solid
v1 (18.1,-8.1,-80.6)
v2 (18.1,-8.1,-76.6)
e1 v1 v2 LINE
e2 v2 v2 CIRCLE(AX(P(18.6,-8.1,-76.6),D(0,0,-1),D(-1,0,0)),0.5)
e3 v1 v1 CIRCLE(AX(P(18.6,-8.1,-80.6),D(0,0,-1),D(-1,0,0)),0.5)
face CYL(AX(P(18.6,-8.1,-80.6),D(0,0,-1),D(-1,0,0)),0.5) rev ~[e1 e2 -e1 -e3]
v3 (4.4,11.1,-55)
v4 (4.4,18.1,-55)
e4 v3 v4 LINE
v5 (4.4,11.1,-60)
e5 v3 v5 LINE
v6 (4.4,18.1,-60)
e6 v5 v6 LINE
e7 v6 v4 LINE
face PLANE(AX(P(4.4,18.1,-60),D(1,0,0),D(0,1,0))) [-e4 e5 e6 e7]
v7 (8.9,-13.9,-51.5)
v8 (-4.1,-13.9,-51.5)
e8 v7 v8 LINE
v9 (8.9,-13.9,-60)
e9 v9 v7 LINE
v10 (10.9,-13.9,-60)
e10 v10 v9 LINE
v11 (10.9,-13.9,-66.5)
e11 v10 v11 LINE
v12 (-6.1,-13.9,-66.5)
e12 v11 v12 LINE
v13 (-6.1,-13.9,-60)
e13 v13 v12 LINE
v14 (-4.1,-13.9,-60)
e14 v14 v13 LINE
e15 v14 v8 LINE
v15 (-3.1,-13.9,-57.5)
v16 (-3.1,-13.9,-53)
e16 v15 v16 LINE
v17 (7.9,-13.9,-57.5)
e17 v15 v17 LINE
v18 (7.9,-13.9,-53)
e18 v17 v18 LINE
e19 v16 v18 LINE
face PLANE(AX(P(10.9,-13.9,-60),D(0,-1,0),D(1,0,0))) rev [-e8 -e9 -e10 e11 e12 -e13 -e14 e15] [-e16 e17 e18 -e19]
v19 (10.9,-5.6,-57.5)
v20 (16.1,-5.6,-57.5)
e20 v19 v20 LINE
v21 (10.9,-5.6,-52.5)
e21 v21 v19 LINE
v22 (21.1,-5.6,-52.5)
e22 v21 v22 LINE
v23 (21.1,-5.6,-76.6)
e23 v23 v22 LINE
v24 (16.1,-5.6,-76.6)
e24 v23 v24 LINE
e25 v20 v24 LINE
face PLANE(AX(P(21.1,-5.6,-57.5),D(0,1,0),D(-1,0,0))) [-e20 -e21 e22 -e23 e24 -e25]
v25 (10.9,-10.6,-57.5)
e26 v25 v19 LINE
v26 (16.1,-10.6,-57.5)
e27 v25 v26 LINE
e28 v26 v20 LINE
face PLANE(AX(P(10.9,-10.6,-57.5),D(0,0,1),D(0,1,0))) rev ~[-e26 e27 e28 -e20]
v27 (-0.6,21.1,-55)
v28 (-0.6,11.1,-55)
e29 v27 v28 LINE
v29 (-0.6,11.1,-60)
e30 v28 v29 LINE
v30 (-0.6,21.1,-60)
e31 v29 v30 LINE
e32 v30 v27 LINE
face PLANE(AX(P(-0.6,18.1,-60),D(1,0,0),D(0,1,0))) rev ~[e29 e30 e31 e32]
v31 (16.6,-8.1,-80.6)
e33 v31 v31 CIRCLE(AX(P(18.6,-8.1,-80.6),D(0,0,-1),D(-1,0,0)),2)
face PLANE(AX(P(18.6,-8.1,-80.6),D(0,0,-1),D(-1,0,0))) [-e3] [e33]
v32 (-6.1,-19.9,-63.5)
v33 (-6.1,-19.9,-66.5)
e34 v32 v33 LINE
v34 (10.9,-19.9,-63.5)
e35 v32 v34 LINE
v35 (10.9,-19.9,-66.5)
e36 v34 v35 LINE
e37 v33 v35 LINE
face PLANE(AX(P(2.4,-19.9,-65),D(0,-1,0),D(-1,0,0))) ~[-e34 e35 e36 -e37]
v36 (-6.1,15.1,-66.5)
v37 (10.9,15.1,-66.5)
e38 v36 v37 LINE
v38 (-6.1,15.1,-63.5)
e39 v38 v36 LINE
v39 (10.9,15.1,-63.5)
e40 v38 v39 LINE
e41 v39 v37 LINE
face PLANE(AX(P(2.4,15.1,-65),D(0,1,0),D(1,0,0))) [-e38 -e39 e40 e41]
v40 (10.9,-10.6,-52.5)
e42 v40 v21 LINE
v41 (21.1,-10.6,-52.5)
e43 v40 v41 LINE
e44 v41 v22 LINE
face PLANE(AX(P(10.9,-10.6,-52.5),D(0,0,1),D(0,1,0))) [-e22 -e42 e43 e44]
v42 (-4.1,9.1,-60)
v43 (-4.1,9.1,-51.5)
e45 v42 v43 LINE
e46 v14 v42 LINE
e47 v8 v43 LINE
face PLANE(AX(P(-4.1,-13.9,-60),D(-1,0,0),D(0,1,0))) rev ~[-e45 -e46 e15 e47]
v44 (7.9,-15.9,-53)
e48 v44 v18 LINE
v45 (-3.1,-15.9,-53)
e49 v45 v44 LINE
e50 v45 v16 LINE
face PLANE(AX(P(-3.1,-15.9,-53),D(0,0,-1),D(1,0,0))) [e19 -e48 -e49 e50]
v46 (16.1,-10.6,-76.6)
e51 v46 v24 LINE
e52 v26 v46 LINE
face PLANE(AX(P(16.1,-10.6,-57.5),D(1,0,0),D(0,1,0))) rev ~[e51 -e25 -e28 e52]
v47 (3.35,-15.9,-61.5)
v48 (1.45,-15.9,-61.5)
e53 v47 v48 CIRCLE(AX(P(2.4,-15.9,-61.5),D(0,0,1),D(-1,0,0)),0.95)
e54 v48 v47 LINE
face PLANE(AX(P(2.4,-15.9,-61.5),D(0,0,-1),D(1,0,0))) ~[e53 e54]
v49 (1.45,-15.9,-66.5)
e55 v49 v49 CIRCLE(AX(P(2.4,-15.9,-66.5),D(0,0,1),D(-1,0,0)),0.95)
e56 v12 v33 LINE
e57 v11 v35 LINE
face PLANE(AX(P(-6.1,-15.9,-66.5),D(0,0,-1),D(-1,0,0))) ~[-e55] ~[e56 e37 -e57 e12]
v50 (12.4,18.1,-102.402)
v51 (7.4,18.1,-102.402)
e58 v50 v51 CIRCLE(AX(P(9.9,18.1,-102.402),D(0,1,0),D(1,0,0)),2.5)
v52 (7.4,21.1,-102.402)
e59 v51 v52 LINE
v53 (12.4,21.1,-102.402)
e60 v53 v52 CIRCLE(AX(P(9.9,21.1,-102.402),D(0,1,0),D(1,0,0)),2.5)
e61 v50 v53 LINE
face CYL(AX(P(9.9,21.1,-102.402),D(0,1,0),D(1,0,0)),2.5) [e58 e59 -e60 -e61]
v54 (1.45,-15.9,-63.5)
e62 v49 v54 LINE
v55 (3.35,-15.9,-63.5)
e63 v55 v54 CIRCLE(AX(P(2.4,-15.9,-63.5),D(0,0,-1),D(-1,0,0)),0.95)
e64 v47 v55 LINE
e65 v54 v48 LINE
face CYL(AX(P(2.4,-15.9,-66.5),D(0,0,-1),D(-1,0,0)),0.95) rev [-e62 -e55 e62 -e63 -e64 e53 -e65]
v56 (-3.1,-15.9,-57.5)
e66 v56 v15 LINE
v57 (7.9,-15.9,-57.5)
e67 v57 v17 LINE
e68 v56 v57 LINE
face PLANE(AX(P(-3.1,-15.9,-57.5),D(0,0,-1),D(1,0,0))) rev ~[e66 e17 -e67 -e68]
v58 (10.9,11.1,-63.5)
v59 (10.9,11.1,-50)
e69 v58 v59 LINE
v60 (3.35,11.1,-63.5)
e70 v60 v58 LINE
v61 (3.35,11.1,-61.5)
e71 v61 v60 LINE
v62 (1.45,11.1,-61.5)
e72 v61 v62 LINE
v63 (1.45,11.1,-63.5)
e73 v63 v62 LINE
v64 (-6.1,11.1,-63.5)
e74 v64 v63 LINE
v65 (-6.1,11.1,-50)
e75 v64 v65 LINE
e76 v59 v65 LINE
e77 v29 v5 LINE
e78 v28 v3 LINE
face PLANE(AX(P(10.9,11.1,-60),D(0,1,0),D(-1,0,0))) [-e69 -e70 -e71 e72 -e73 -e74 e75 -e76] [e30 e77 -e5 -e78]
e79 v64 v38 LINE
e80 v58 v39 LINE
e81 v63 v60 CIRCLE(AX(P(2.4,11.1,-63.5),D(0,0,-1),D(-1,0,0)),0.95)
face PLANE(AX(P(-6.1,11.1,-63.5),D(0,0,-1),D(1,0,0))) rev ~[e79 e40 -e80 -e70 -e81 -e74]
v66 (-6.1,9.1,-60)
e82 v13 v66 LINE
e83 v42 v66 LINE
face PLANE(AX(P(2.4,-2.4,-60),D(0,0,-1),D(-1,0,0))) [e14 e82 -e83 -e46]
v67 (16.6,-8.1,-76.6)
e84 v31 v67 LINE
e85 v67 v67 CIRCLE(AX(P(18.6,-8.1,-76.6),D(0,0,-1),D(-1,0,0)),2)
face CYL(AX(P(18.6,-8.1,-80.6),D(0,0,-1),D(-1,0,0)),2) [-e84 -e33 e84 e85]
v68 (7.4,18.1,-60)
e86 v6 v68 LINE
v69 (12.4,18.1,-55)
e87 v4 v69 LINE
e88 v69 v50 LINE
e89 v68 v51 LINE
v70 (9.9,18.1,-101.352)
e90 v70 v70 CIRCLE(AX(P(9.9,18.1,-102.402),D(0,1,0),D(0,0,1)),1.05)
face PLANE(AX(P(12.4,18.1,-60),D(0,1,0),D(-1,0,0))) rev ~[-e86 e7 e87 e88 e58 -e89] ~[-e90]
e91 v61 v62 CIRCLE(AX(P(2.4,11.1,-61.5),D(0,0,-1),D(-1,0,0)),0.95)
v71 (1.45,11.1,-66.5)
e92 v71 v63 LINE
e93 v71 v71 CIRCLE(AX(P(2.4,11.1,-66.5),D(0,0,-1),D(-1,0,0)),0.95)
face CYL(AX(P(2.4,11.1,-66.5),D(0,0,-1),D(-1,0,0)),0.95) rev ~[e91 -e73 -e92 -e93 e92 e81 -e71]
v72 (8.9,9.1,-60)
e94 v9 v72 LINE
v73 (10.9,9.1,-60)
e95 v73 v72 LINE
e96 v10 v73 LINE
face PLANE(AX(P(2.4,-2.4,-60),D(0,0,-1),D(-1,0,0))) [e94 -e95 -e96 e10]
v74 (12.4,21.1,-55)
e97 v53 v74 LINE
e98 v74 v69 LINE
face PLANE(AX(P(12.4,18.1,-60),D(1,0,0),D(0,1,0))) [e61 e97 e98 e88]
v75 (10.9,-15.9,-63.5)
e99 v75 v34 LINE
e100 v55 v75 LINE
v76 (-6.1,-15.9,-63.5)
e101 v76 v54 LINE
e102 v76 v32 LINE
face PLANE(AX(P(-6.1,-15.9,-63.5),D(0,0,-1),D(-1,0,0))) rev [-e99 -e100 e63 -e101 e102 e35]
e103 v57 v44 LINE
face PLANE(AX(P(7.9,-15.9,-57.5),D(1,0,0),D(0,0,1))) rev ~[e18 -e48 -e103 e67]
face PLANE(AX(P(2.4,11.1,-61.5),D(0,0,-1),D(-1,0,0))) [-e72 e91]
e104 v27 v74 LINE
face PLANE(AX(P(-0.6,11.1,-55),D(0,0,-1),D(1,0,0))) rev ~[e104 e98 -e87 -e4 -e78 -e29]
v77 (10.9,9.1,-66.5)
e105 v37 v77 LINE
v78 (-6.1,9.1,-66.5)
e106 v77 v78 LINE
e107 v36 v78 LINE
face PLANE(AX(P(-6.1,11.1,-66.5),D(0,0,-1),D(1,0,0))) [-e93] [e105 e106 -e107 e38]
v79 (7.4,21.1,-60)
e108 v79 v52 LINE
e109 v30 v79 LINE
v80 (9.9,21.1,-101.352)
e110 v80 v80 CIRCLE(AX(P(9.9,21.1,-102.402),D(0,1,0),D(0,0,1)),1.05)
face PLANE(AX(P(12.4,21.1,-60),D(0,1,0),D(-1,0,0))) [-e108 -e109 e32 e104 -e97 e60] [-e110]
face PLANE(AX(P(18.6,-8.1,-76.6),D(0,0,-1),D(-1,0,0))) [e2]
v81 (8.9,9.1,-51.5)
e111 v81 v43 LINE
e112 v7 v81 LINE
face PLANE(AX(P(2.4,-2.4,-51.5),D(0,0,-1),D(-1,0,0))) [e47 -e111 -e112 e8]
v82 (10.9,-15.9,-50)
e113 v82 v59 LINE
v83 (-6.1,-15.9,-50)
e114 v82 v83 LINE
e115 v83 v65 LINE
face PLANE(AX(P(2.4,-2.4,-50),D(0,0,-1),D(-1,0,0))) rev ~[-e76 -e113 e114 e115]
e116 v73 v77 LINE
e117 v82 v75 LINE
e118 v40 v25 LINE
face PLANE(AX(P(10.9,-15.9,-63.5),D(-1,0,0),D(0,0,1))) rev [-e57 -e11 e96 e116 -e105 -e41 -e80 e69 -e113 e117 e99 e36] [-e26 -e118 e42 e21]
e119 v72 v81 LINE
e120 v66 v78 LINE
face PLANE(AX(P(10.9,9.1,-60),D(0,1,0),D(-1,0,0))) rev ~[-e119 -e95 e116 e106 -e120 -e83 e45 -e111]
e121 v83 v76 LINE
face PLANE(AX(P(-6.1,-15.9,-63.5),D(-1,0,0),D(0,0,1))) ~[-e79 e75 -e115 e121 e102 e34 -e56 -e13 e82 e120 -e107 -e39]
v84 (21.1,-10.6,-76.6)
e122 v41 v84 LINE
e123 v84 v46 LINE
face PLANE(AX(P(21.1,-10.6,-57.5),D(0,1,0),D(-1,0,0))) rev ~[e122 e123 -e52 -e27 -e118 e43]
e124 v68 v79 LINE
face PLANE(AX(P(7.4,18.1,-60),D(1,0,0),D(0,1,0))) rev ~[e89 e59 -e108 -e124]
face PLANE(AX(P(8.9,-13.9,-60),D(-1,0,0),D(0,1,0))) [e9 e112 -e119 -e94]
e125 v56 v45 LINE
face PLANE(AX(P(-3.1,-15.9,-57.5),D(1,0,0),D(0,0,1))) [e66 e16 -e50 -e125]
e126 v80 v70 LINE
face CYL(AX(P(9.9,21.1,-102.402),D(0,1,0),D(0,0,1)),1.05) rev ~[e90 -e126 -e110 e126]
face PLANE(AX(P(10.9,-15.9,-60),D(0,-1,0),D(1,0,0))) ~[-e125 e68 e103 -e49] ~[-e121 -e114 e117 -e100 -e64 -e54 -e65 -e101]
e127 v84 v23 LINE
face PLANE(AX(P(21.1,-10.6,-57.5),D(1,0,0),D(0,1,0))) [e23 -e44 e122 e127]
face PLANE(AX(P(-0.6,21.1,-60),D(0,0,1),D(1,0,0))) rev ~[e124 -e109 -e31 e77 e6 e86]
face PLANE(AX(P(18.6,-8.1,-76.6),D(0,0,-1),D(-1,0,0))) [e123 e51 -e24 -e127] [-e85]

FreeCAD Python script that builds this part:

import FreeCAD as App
import Part
import Sketcher
from FreeCAD import Vector

doc = App.newDocument("Part")
body = doc.addObject("PartDesign::Body", "Body")

sketch1 = body.newObject("Sketcher::SketchObject", "Sketch")
sketch1.AttachmentSupport = (doc.getObject("XY_Plane"), [""])
sketch1.MapMode = "FlatFace"
sketch1.addGeometry(Part.LineSegment(Vector(0, 0, 0), Vector(0, -4.8, 0)), False)
sketch1.addGeometry(Part.LineSegment(Vector(0, -4.8, 0), Vector(4.8, -4.8, 0)), False)
sketch1.addGeometry(Part.LineSegment(Vector(4.8, -4.8, 0), Vector(4.8, 0, 0)), False)
sketch1.addGeometry(Part.LineSegment(Vector(4.8, 0, 0), Vector(0, 0, 0)), False)
sketch1.addConstraint(Sketcher.Constraint("Coincident", 0, 2, 1, 1))
sketch1.addConstraint(Sketcher.Constraint("Coincident", 1, 2, 2, 1))
sketch1.addConstraint(Sketcher.Constraint("Coincident", 2, 2, 3, 1))
sketch1.addConstraint(Sketcher.Constraint("Coincident", 3, 2, 0, 1))
sketch1.addConstraint(Sketcher.Constraint("Vertical", 0))
sketch1.addConstraint(Sketcher.Constraint("Horizontal", 1))
sketch1.addConstraint(Sketcher.Constraint("Vertical", 2))
sketch1.addConstraint(Sketcher.Constraint("Horizontal", 3))
sketch1.addConstraint(Sketcher.Constraint("Coincident", 3, 2, -1, 1))
sketch1.addConstraint(Sketcher.Constraint("Equal", 3, 0))
sketch1.addConstraint(Sketcher.Constraint("DistanceX", 1, 1, 1, 2, 4.8))
pad1 = body.newObject("PartDesign::Pad", "Pad")
pad1.Profile = sketch1
pad1.Length = 1

sketch2 = body.newObject("Sketcher::SketchObject", "Sketch001")
sketch2.AttachmentSupport = (doc.getObject("XY_Plane"), [""])
sketch2.MapMode = "FlatFace"
sketch2.addGeometry(Part.LineSegment(Vector(5, 0.2, 0), Vector(5, -5, 0)), False)
sketch2.addGeometry(Part.LineSegment(Vector(5, -5, 0), Vector(-0.2, -5, 0)), False)
sketch2.addGeometry(Part.LineSegment(Vector(-0.2, -5, 0), Vector(-0.2, 0.2, 0)), False)
sketch2.addGeometry(Part.LineSegment(Vector(-0.2, 0.2, 0), Vector(5, 0.2, 0)), False)
sketch2.addConstraint(Sketcher.Constraint("Coincident", 0, 2, 1, 1))
sketch2.addConstraint(Sketcher.Constraint("Coincident", 1, 2, 2, 1))
sketch2.addConstraint(Sketcher.Constraint("Coincident", 2, 2, 3, 1))
sketch2.addConstraint(Sketcher.Constraint("Coincident", 3, 2, 0, 1))
sketch2.addConstraint(Sketcher.Constraint("Vertical", 0))
sketch2.addConstraint(Sketcher.Constraint("Horizontal", 1))
sketch2.addConstraint(Sketcher.Constraint("Vertical", 2))
sketch2.addConstraint(Sketcher.Constraint("Horizontal", 3))
sketch2.addConstraint(Sketcher.Constraint("Equal", 3, 0))
sketch2.addConstraint(Sketcher.Constraint("DistanceX", 1, 2, 1, 1, 5.2))
sketch2.addConstraint(Sketcher.Constraint("DistanceX", -1, 1, 0, 2, 5.0))
sketch2.addConstraint(Sketcher.Constraint("DistanceY", 0, 2, -1, 1, 5.0))
pad2 = body.newObject("PartDesign::Pad", "Pad001")
pad2.Profile = sketch2
pad2.Length = 50
pad2.Reversed = True

sketch3 = body.newObject("Sketcher::SketchObject", "Sketch002")
sketch3.AttachmentSupport = (doc.getObject("XY_Plane"), [""])
sketch3.MapMode = "FlatFace"
sketch3.AttachmentOffset = App.Placement(Vector(0, 0, -50), App.Rotation())
sketch3.addGeometry(Part.LineSegment(Vector(10.9, 11.1, 0), Vector(10.9, -15.9, 0)), False)
sketch3.addGeometry(Part.LineSegment(Vector(10.9, -15.9, 0), Vector(-6.1, -15.9, 0)), False)
sketch3.addGeometry(Part.LineSegment(Vector(-6.1, -15.9, 0), Vector(-6.1, 11.1, 0)), False)
sketch3.addGeometry(Part.LineSegment(Vector(-6.1, 11.1, 0), Vector(10.9, 11.1, 0)), False)
sketch3.addConstraint(Sketcher.Constraint("Coincident", 0, 2, 1, 1))
sketch3.addConstraint(Sketcher.Constraint("Coincident", 1, 2, 2, 1))
sketch3.addConstraint(Sketcher.Constraint("Coincident", 2, 2, 3, 1))
sketch3.addConstraint(Sketcher.Constraint("Coincident", 3, 2, 0, 1))
sketch3.addConstraint(Sketcher.Constraint("Vertical", 0))
sketch3.addConstraint(Sketcher.Constraint("Horizontal", 1))
sketch3.addConstraint(Sketcher.Constraint("Vertical", 2))
sketch3.addConstraint(Sketcher.Constraint("Horizontal", 3))
sketch3.addConstraint(Sketcher.Constraint("DistanceX", 1, 2, 1, 1, 17.0))
sketch3.addConstraint(Sketcher.Constraint("DistanceY", 0, 2, 0, 1, 27.0))
sketch3.addConstraint(Sketcher.Constraint("DistanceX", -1, 1, 0, 2, 10.9))
sketch3.addConstraint(Sketcher.Constraint("DistanceY", 0, 2, -1, 1, 15.9))
pad3 = body.newObject("PartDesign::Pad", "Pad002")
pad3.Profile = sketch3
pad3.Length = 10
pad3.Reversed = True

sketch4 = body.newObject("Sketcher::SketchObject", "Sketch003")
sketch4.AttachmentSupport = (doc.getObject("XY_Plane"), [""])
sketch4.MapMode = "FlatFace"
sketch4.AttachmentOffset = App.Placement(Vector(0, 0, -60), App.Rotation())
sketch4.addGeometry(Part.LineSegment(Vector(8.9, 9.1, 0), Vector(8.9, -13.9, 0)), False)
sketch4.addGeometry(Part.LineSegment(Vector(8.9, -13.9, 0), Vector(-4.1, -13.9, 0)), False)
sketch4.addGeometry(Part.LineSegment(Vector(-4.1, -13.9, 0), Vector(-4.1, 9.1, 0)), False)
sketch4.addGeometry(Part.LineSegment(Vector(-4.1, 9.1, 0), Vector(8.9, 9.1, 0)), False)
sketch4.addConstraint(Sketcher.Constraint("Coincident", 0, 2, 1, 1))
sketch4.addConstraint(Sketcher.Constraint("Coincident", 1, 2, 2, 1))
sketch4.addConstraint(Sketcher.Constraint("Coincident", 2, 2, 3, 1))
sketch4.addConstraint(Sketcher.Constraint("Coincident", 3, 2, 0, 1))
sketch4.addConstraint(Sketcher.Constraint("Vertical", 0))
sketch4.addConstraint(Sketcher.Constraint("Horizontal", 1))
sketch4.addConstraint(Sketcher.Constraint("Vertical", 2))
sketch4.addConstraint(Sketcher.Constraint("Horizontal", 3))
sketch4.addConstraint(Sketcher.Constraint("DistanceX", 1, 2, 1, 1, 13.0))
sketch4.addConstraint(Sketcher.Constraint("DistanceY", 0, 2, 0, 1, 23.0))
sketch4.addConstraint(Sketcher.Constraint("DistanceX", -1, 1, 0, 2, 8.9))
sketch4.addConstraint(Sketcher.Constraint("DistanceY", 0, 2, -1, 1, 13.9))
pocket1 = body.newObject("PartDesign::Pocket", "Pocket")
pocket1.Profile = sketch4
pocket1.Length = 8.5
pocket1.Reversed = True

sketch5 = body.newObject("Sketcher::SketchObject", "Sketch004")
sketch5.AttachmentSupport = (doc.getObject("XZ_Plane"), [""])
sketch5.MapMode = "FlatFace"
sketch5.AttachmentOffset = App.Placement(Vector(0, 0, 15.9), App.Rotation())
sketch5.addGeometry(Part.LineSegment(Vector(-3.1, -53, 0), Vector(-3.1, -57.5, 0)), False)
sketch5.addGeometry(Part.LineSegment(Vector(-3.1, -57.5, 0), Vector(7.9, -57.5, 0)), False)
sketch5.addGeometry(Part.LineSegment(Vector(7.9, -57.5, 0), Vector(7.9, -53, 0)), False)
sketch5.addGeometry(Part.LineSegment(Vector(7.9, -53, 0), Vector(-3.1, -53, 0)), False)
sketch5.addConstraint(Sketcher.Constraint("Coincident", 0, 2, 1, 1))
sketch5.addConstraint(Sketcher.Constraint("Coincident", 1, 2, 2, 1))
sketch5.addConstraint(Sketcher.Constraint("Coincident", 2, 2, 3, 1))
sketch5.addConstraint(Sketcher.Constraint("Coincident", 3, 2, 0, 1))
sketch5.addConstraint(Sketcher.Constraint("Vertical", 0))
sketch5.addConstraint(Sketcher.Constraint("Horizontal", 1))
sketch5.addConstraint(Sketcher.Constraint("Vertical", 2))
sketch5.addConstraint(Sketcher.Constraint("Horizontal", 3))
sketch5.addConstraint(Sketcher.Constraint("DistanceX", 1, 1, 1, 2, 11.0))
sketch5.addConstraint(Sketcher.Constraint("DistanceY", 0, 2, 0, 1, 4.5))
sketch5.addConstraint(Sketcher.Constraint("DistanceY", 2, 2, -1, 1, 53.0))
sketch5.addConstraint(Sketcher.Constraint("DistanceX", 0, 2, -1, 1, 3.1))
pocket2 = body.newObject("PartDesign::Pocket", "Pocket001")
pocket2.Profile = sketch5
pocket2.Length = 4

sketch6 = body.newObject("Sketcher::SketchObject", "Sketch005")
sketch6.AttachmentSupport = (doc.getObject("XY_Plane"), [""])
sketch6.MapMode = "FlatFace"
sketch6.AttachmentOffset = App.Placement(Vector(0, 0, -50), App.Rotation())
sketch6.addGeometry(Part.LineSegment(Vector(-6.1, 11.1, 0), Vector(-6.1, -15.9, 0)), False)
sketch6.addGeometry(Part.LineSegment(Vector(-6.1, -15.9, 0), Vector(10.9, -15.9, 0)), False)
sketch6.addGeometry(Part.LineSegment(Vector(10.9, -15.9, 0), Vector(10.9, 11.1, 0)), False)
sketch6.addGeometry(Part.LineSegment(Vector(10.9, 11.1, 0), Vector(-6.1, 11.1, 0)), False)
sketch6.addConstraint(Sketcher.Constraint("Coincident", 0, 2, 1, 1))
sketch6.addConstraint(Sketcher.Constraint("Coincident", 1, 2, 2, 1))
sketch6.addConstraint(Sketcher.Constraint("Coincident", 2, 2, 3, 1))
sketch6.addConstraint(Sketcher.Constraint("Coincident", 3, 2, 0, 1))
sketch6.addConstraint(Sketcher.Constraint("Vertical", 0))
sketch6.addConstraint(Sketcher.Constraint("Horizontal", 1))
sketch6.addConstraint(Sketcher.Constraint("Vertical", 2))
sketch6.addConstraint(Sketcher.Constraint("Horizontal", 3))
sketch6.addConstraint(Sketcher.Constraint("DistanceX", 1, 1, 1, 2, 17.0))
sketch6.addConstraint(Sketcher.Constraint("DistanceY", 0, 2, 0, 1, 27.0))
sketch6.addConstraint(Sketcher.Constraint("DistanceX", 0, 2, -1, 1, 6.1))
sketch6.addConstraint(Sketcher.Constraint("DistanceY", 0, 2, -1, 1, 15.9))
pocket3 = body.newObject("PartDesign::Pocket", "Pocket002")
pocket3.Profile = sketch6
pocket3.Type = "ThroughAll"
pocket3.Reversed = True

sketch7 = body.newObject("Sketcher::SketchObject", "Sketch006")
sketch7.AttachmentSupport = (doc.getObject("XY_Plane"), [""])
sketch7.MapMode = "FlatFace"
sketch7.AttachmentOffset = App.Placement(Vector(0, 0, -60), App.Rotation())
sketch7.addGeometry(Part.LineSegment(Vector(10.9, 11.1, 0), Vector(10.9, 9.1, 0)), False)
sketch7.addGeometry(Part.LineSegment(Vector(10.9, 9.1, 0), Vector(-6.1, 9.1, 0)), False)
sketch7.addGeometry(Part.LineSegment(Vector(-6.1, 9.1, 0), Vector(-6.1, 11.1, 0)), False)
sketch7.addGeometry(Part.LineSegment(Vector(-6.1, 11.1, 0), Vector(10.9, 11.1, 0)), False)
sketch7.addConstraint(Sketcher.Constraint("Coincident", 0, 2, 1, 1))
sketch7.addConstraint(Sketcher.Constraint("Coincident", 1, 2, 2, 1))
sketch7.addConstraint(Sketcher.Constraint("Coincident", 2, 2, 3, 1))
sketch7.addConstraint(Sketcher.Constraint("Coincident", 3, 2, 0, 1))
sketch7.addConstraint(Sketcher.Constraint("Vertical", 0))
sketch7.addConstraint(Sketcher.Constraint("Horizontal", 1))
sketch7.addConstraint(Sketcher.Constraint("Vertical", 2))
sketch7.addConstraint(Sketcher.Constraint("Horizontal", 3))
sketch7.addConstraint(Sketcher.Constraint("DistanceX", 1, 2, 1, 1, 17.0))
sketch7.addConstraint(Sketcher.Constraint("DistanceY", 0, 2, 0, 1, 2.0))
sketch7.addConstraint(Sketcher.Constraint("DistanceX", -1, 1, 0, 2, 10.9))
sketch7.addConstraint(Sketcher.Constraint("DistanceY", -1, 1, 0, 2, 9.1))
pad4 = body.newObject("PartDesign::Pad", "Pad003")
pad4.Profile = sketch7
pad4.Length = 6.5
pad4.Reversed = True

sketch8 = body.newObject("Sketcher::SketchObject", "Sketch007")
sketch8.AttachmentSupport = (doc.getObject("XZ_Plane"), [""])
sketch8.MapMode = "FlatFace"
sketch8.AttachmentOffset = App.Placement(Vector(0, 0, -11.1), App.Rotation())
sketch8.addGeometry(Part.LineSegment(Vector(-6.1, -66.5, 0), Vector(-6.1, -63.5, 0)), False)
sketch8.addGeometry(Part.LineSegment(Vector(-6.1, -63.5, 0), Vector(10.9, -63.5, 0)), False)
sketch8.addGeometry(Part.LineSegment(Vector(10.9, -63.5, 0), Vector(10.9, -66.5, 0)), False)
sketch8.addGeometry(Part.LineSegment(Vector(10.9, -66.5, 0), Vector(-6.1, -66.5, 0)), False)
sketch8.addConstraint(Sketcher.Constraint("Coincident", 0, 2, 1, 1))
sketch8.addConstraint(Sketcher.Constraint("Coincident", 1, 2, 2, 1))
sketch8.addConstraint(Sketcher.Constraint("Coincident", 2, 2, 3, 1))
sketch8.addConstraint(Sketcher.Constraint("Coincident", 3, 2, 0, 1))
sketch8.addConstraint(Sketcher.Constraint("Vertical", 0))
sketch8.addConstraint(Sketcher.Constraint("Horizontal", 1))
sketch8.addConstraint(Sketcher.Constraint("Vertical", 2))
sketch8.addConstraint(Sketcher.Constraint("Horizontal", 3))
sketch8.addConstraint(Sketcher.Constraint("DistanceX", 1, 1, 1, 2, 17.0))
sketch8.addConstraint(Sketcher.Constraint("DistanceY", 0, 1, 0, 2, 3.0))
sketch8.addConstraint(Sketcher.Constraint("DistanceX", 0, 2, -1, 1, 6.1))
sketch8.addConstraint(Sketcher.Constraint("DistanceY", 0, 2, -1, 1, 63.5))
pad5 = body.newObject("PartDesign::Pad", "Pad004")
pad5.Profile = sketch8
pad5.Length = 4
pad5.Reversed = True

sketch9 = body.newObject("Sketcher::SketchObject", "Sketch008")
sketch9.AttachmentSupport = (doc.getObject("XY_Plane"), [""])
sketch9.MapMode = "FlatFace"
sketch9.AttachmentOffset = App.Placement(Vector(0, 0, -66.5), App.Rotation())
sketch9.addGeometry(Part.Circle(Vector(2.4, 11.1, 0), Vector(0, 0, 1), 0.95), False)
sketch9.addConstraint(Sketcher.Constraint("Diameter", 0, 1.9))
sketch9.addConstraint(Sketcher.Constraint("DistanceX", -1, 1, 0, 3, 2.4))
sketch9.addConstraint(Sketcher.Constraint("DistanceY", -1, 1, 0, 3, 11.1))
pocket4 = body.newObject("PartDesign::Pocket", "Pocket003")
pocket4.Profile = sketch9
pocket4.Length = 5
pocket4.Reversed = True
doc.recompute()

datumplane = body.newObject("PartDesign::Plane", "DatumPlane")
datumplane.AttachmentSupport = (doc.getObject("XZ_Plane"), [""])
datumplane.MapMode = "FlatFace"
datumplane.AttachmentOffset = App.Placement(Vector(0, 0, 2.4), App.Rotation())
mirrored = body.newObject("PartDesign::Mirrored", "Mirrored")
mirrored.Originals = [pad4, pad5, pocket4]
mirrored.MirrorPlane = (datumplane, [""])
body.Tip = mirrored

sketch10 = body.newObject("Sketcher::SketchObject", "Sketch009")
sketch10.AttachmentSupport = (doc.getObject("YZ_Plane"), [""])
sketch10.MapMode = "FlatFace"
sketch10.AttachmentOffset = App.Placement(Vector(0, 0, 10.9), App.Rotation())
sketch10.addGeometry(Part.LineSegment(Vector(-5.6, -52.5, 0), Vector(-10.6, -52.5, 0)), False)
sketch10.addGeometry(Part.LineSegment(Vector(-10.6, -52.5, 0), Vector(-10.6, -57.5, 0)), False)
sketch10.addGeometry(Part.LineSegment(Vector(-10.6, -57.5, 0), Vector(-5.6, -57.5, 0)), False)
sketch10.addGeometry(Part.LineSegment(Vector(-5.6, -57.5, 0), Vector(-5.6, -52.5, 0)), False)
sketch10.addConstraint(Sketcher.Constraint("Coincident", 0, 2, 1, 1))
sketch10.addConstraint(Sketcher.Constraint("Coincident", 1, 2, 2, 1))
sketch10.addConstraint(Sketcher.Constraint("Coincident", 2, 2, 3, 1))
sketch10.addConstraint(Sketcher.Constraint("Coincident", 3, 2, 0, 1))
sketch10.addConstraint(Sketcher.Constraint("Horizontal", 0))
sketch10.addConstraint(Sketcher.Constraint("Vertical", 1))
sketch10.addConstraint(Sketcher.Constraint("Horizontal", 2))
sketch10.addConstraint(Sketcher.Constraint("Vertical", 3))
sketch10.addConstraint(Sketcher.Constraint("Equal", 2, 1))
sketch10.addConstraint(Sketcher.Constraint("DistanceX", 0, 2, 0, 1, 5.0))
sketch10.addConstraint(Sketcher.Constraint("DistanceX", 0, 2, -1, 1, 10.6))
sketch10.addConstraint(Sketcher.Constraint("DistanceY", 0, 2, -1, 1, 52.5))
pad6 = body.newObject("PartDesign::Pad", "Pad005")
pad6.Profile = sketch10
pad6.Length = 10.2

sketch11 = body.newObject("Sketcher::SketchObject", "Sketch010")
sketch11.AttachmentSupport = (doc.getObject("XY_Plane"), [""])
sketch11.MapMode = "FlatFace"
sketch11.AttachmentOffset = App.Placement(Vector(0, 0, -57.5), App.Rotation())
sketch11.addGeometry(Part.LineSegment(Vector(21.1, -5.6, 0), Vector(21.1, -10.6, 0)), False)
sketch11.addGeometry(Part.LineSegment(Vector(21.1, -10.6, 0), Vector(16.1, -10.6, 0)), False)
sketch11.addGeometry(Part.LineSegment(Vector(16.1, -10.6, 0), Vector(16.1, -5.6, 0)), False)
sketch11.addGeometry(Part.LineSegment(Vector(16.1, -5.6, 0), Vector(21.1, -5.6, 0)), False)
sketch11.addConstraint(Sketcher.Constraint("Coincident", 0, 2, 1, 1))
sketch11.addConstraint(Sketcher.Constraint("Coincident", 1, 2, 2, 1))
sketch11.addConstraint(Sketcher.Constraint("Coincident", 2, 2, 3, 1))
sketch11.addConstraint(Sketcher.Constraint("Coincident", 3, 2, 0, 1))
sketch11.addConstraint(Sketcher.Constraint("Vertical", 0))
sketch11.addConstraint(Sketcher.Constraint("Horizontal", 1))
sketch11.addConstraint(Sketcher.Constraint("Vertical", 2))
sketch11.addConstraint(Sketcher.Constraint("Horizontal", 3))
sketch11.addConstraint(Sketcher.Constraint("Equal", 3, 0))
sketch11.addConstraint(Sketcher.Constraint("DistanceX", 1, 2, 1, 1, 5.0))
sketch11.addConstraint(Sketcher.Constraint("DistanceX", -1, 1, 0, 2, 21.1))
sketch11.addConstraint(Sketcher.Constraint("DistanceY", 0, 2, -1, 1, 10.6))
pad7 = body.newObject("PartDesign::Pad", "Pad006")
pad7.Profile = sketch11
pad7.Length = 23.1
pad7.Reversed = True

sketch12 = body.newObject("Sketcher::SketchObject", "Sketch011")
sketch12.AttachmentSupport = (doc.getObject("XY_Plane"), [""])
sketch12.MapMode = "FlatFace"
sketch12.AttachmentOffset = App.Placement(Vector(0, 0, -80.6), App.Rotation())
sketch12.addGeometry(Part.LineSegment(Vector(21.1, -5.6, 0), Vector(21.1, -10.6, 0)), False)
sketch12.addGeometry(Part.LineSegment(Vector(21.1, -10.6, 0), Vector(16.1, -10.6, 0)), False)
sketch12.addGeometry(Part.LineSegment(Vector(16.1, -10.6, 0), Vector(16.1, -5.6, 0)), False)
sketch12.addGeometry(Part.LineSegment(Vector(16.1, -5.6, 0), Vector(21.1, -5.6, 0)), False)
sketch12.addGeometry(Part.Circle(Vector(18.6, -8.1, 0), Vector(0, 0, 1), 2), False)
sketch12.addConstraint(Sketcher.Constraint("Coincident", 0, 2, 1, 1))
sketch12.addConstraint(Sketcher.Constraint("Coincident", 1, 2, 2, 1))
sketch12.addConstraint(Sketcher.Constraint("Coincident", 2, 2, 3, 1))
sketch12.addConstraint(Sketcher.Constraint("Coincident", 3, 2, 0, 1))
sketch12.addConstraint(Sketcher.Constraint("Vertical", 0))
sketch12.addConstraint(Sketcher.Constraint("Horizontal", 1))
sketch12.addConstraint(Sketcher.Constraint("Vertical", 2))
sketch12.addConstraint(Sketcher.Constraint("Horizontal", 3))
sketch12.addConstraint(Sketcher.Constraint("Equal", 3, 0))
sketch12.addConstraint(Sketcher.Constraint("Diameter", 4, 4.0))
sketch12.addConstraint(Sketcher.Constraint("DistanceX", 1, 2, 1, 1, 5.0))
sketch12.addConstraint(Sketcher.Constraint("DistanceX", -1, 1, 4, 3, 18.6))
sketch12.addConstraint(Sketcher.Constraint("DistanceY", 4, 3, -1, 1, 8.1))
sketch12.addConstraint(Sketcher.Constraint("DistanceX", -1, 1, 0, 2, 21.1))
sketch12.addConstraint(Sketcher.Constraint("DistanceY", 0, 2, -1, 1, 10.6))
pocket5 = body.newObject("PartDesign::Pocket", "Pocket004")
pocket5.Profile = sketch12
pocket5.Length = 4
pocket5.Reversed = True

sketch13 = body.newObject("Sketcher::SketchObject", "Sketch012")
sketch13.AttachmentSupport = (doc.getObject("XY_Plane"), [""])
sketch13.MapMode = "FlatFace"
sketch13.AttachmentOffset = App.Placement(Vector(0, 0, -80.6), App.Rotation())
sketch13.addGeometry(Part.Circle(Vector(18.6, -8.1, 0), Vector(0, 0, 1), 0.5), False)
sketch13.addConstraint(Sketcher.Constraint("Diameter", 0, 1.0))
sketch13.addConstraint(Sketcher.Constraint("DistanceX", -1, 1, 0, 3, 18.6))
sketch13.addConstraint(Sketcher.Constraint("DistanceY", 0, 3, -1, 1, 8.1))
pocket6 = body.newObject("PartDesign::Pocket", "Pocket005")
pocket6.Profile = sketch13
pocket6.Length = 4
pocket6.Reversed = True

sketch14 = body.newObject("Sketcher::SketchObject", "Sketch013")
sketch14.AttachmentSupport = (doc.getObject("XZ_Plane"), [""])
sketch14.MapMode = "FlatFace"
sketch14.AttachmentOffset = App.Placement(Vector(0, 0, -11.1), App.Rotation())
sketch14.addGeometry(Part.LineSegment(Vector(-0.6, -60, 0), Vector(-0.6, -55, 0)), False)
sketch14.addGeometry(Part.LineSegment(Vector(-0.6, -55, 0), Vector(4.4, -55, 0)), False)
sketch14.addGeometry(Part.LineSegment(Vector(4.4, -55, 0), Vector(4.4, -60, 0)), False)
sketch14.addGeometry(Part.LineSegment(Vector(4.4, -60, 0), Vector(-0.6, -60, 0)), False)
sketch14.addConstraint(Sketcher.Constraint("Coincident", 0, 2, 1, 1))
sketch14.addConstraint(Sketcher.Constraint("Coincident", 1, 2, 2, 1))
sketch14.addConstraint(Sketcher.Constraint("Coincident", 2, 2, 3, 1))
sketch14.addConstraint(Sketcher.Constraint("Coincident", 3, 2, 0, 1))
sketch14.addConstraint(Sketcher.Constraint("Vertical", 0))
sketch14.addConstraint(Sketcher.Constraint("Horizontal", 1))
sketch14.addConstraint(Sketcher.Constraint("Vertical", 2))
sketch14.addConstraint(Sketcher.Constraint("Horizontal", 3))
sketch14.addConstraint(Sketcher.Constraint("Equal", 3, 0))
sketch14.addConstraint(Sketcher.Constraint("DistanceX", 1, 1, 1, 2, 5.0))
sketch14.addConstraint(Sketcher.Constraint("DistanceY", 0, 2, -1, 1, 55.0))
sketch14.addConstraint(Sketcher.Constraint("DistanceX", 0, 2, -1, 1, 0.6))
pad8 = body.newObject("PartDesign::Pad", "Pad007")
pad8.Profile = sketch14
pad8.Length = 10
pad8.Reversed = True

sketch15 = body.newObject("Sketcher::SketchObject", "Sketch014")
sketch15.AttachmentSupport = (doc.getObject("XY_Plane"), [""])
sketch15.MapMode = "FlatFace"
sketch15.AttachmentOffset = App.Placement(Vector(0, 0, -60), App.Rotation())
sketch15.addGeometry(Part.LineSegment(Vector(4.4, 21.1, 0), Vector(4.4, 18.1, 0)), False)
sketch15.addGeometry(Part.LineSegment(Vector(4.4, 18.1, 0), Vector(-0.6, 18.1, 0)), False)
sketch15.addGeometry(Part.LineSegment(Vector(-0.6, 18.1, 0), Vector(-0.6, 21.1, 0)), False)
sketch15.addGeometry(Part.LineSegment(Vector(-0.6, 21.1, 0), Vector(4.4, 21.1, 0)), False)
sketch15.addConstraint(Sketcher.Constraint("Coincident", 0, 2, 1, 1))
sketch15.addConstraint(Sketcher.Constraint("Coincident", 1, 2, 2, 1))
sketch15.addConstraint(Sketcher.Constraint("Coincident", 2, 2, 3, 1))
sketch15.addConstraint(Sketcher.Constraint("Coincident", 3, 2, 0, 1))
sketch15.addConstraint(Sketcher.Constraint("Vertical", 0))
sketch15.addConstraint(Sketcher.Constraint("Horizontal", 1))
sketch15.addConstraint(Sketcher.Constraint("Vertical", 2))
sketch15.addConstraint(Sketcher.Constraint("Horizontal", 3))
sketch15.addConstraint(Sketcher.Constraint("DistanceX", 1, 2, 1, 1, 5.0))
sketch15.addConstraint(Sketcher.Constraint("DistanceY", 0, 2, 0, 1, 3.0))
sketch15.addConstraint(Sketcher.Constraint("DistanceX", -1, 1, 0, 2, 4.4))
sketch15.addConstraint(Sketcher.Constraint("DistanceY", -1, 1, 0, 2, 18.1))
pad9 = body.newObject("PartDesign::Pad", "Pad008")
pad9.Profile = sketch15
pad9.Length = 42.402
pad9.Reversed = True

sketch16 = body.newObject("Sketcher::SketchObject", "Sketch015")
sketch16.AttachmentSupport = (doc.getObject("XZ_Plane"), [""])
sketch16.MapMode = "FlatFace"
sketch16.AttachmentOffset = App.Placement(Vector(0, 0, -21.1), App.Rotation())
sketch16.addGeometry(Part.Circle(Vector(1.9, -102.402, 0), Vector(0, 0, 1), 2.5), False)
sketch16.addConstraint(Sketcher.Constraint("Diameter", 0, 5.0))
sketch16.addConstraint(Sketcher.Constraint("DistanceX", -1, 1, 0, 3, 1.9))
sketch16.addConstraint(Sketcher.Constraint("DistanceY", 0, 3, -1, 1, 102.402))
pad10 = body.newObject("PartDesign::Pad", "Pad009")
pad10.Profile = sketch16
pad10.Length = 3

sketch17 = body.newObject("Sketcher::SketchObject", "Sketch016")
sketch17.AttachmentSupport = (doc.getObject("XZ_Plane"), [""])
sketch17.MapMode = "FlatFace"
sketch17.AttachmentOffset = App.Placement(Vector(0, 0, -21.1), App.Rotation())
sketch17.addGeometry(Part.Circle(Vector(1.9, -102.402, 0), Vector(0, 0, 1), 1.05), False)
sketch17.addConstraint(Sketcher.Constraint("Diameter", 0, 2.1))
sketch17.addConstraint(Sketcher.Constraint("DistanceX", -1, 1, 0, 3, 1.9))
sketch17.addConstraint(Sketcher.Constraint("DistanceY", 0, 3, -1, 1, 102.402))
pocket7 = body.newObject("PartDesign::Pocket", "Pocket006")
pocket7.Profile = sketch17
pocket7.Length = 3
pocket7.Reversed = True

sketch18 = body.newObject("Sketcher::SketchObject", "Sketch017")
sketch18.AttachmentSupport = (doc.getObject("XZ_Plane"), [""])
sketch18.MapMode = "FlatFace"
sketch18.AttachmentOffset = App.Placement(Vector(0, 0, -21.1), App.Rotation())
sketch18.addGeometry(Part.LineSegment(Vector(-0.6, -60, 0), Vector(-0.6, -55, 0)), False)
sketch18.addGeometry(Part.LineSegment(Vector(-0.6, -55, 0), Vector(12.4, -55, 0)), False)
sketch18.addGeometry(Part.LineSegment(Vector(12.4, -55, 0), Vector(12.4, -60, 0)), False)
sketch18.addGeometry(Part.LineSegment(Vector(12.4, -60, 0), Vector(-0.6, -60, 0)), False)
sketch18.addConstraint(Sketcher.Constraint("Coincident", 0, 2, 1, 1))
sketch18.addConstraint(Sketcher.Constraint("Coincident", 1, 2, 2, 1))
sketch18.addConstraint(Sketcher.Constraint("Coincident", 2, 2, 3, 1))
sketch18.addConstraint(Sketcher.Constraint("Coincident", 3, 2, 0, 1))
sketch18.addConstraint(Sketcher.Constraint("Vertical", 0))
sketch18.addConstraint(Sketcher.Constraint("Horizontal", 1))
sketch18.addConstraint(Sketcher.Constraint("Vertical", 2))
sketch18.addConstraint(Sketcher.Constraint("Horizontal", 3))
sketch18.addConstraint(Sketcher.Constraint("DistanceX", 1, 1, 1, 2, 13.0))
sketch18.addConstraint(Sketcher.Constraint("DistanceY", 0, 1, 0, 2, 5.0))
sketch18.addConstraint(Sketcher.Constraint("DistanceY", 0, 2, -1, 1, 55.0))
sketch18.addConstraint(Sketcher.Constraint("DistanceX", 0, 2, -1, 1, 0.6))
pad11 = body.newObject("PartDesign::Pad", "Pad010")
pad11.Profile = sketch18
pad11.Length = 3

sketch19 = body.newObject("Sketcher::SketchObject", "Sketch018")
sketch19.AttachmentSupport = (doc.getObject("XY_Plane"), [""])
sketch19.MapMode = "FlatFace"
sketch19.AttachmentOffset = App.Placement(Vector(0, 0, -60), App.Rotation())
sketch19.addGeometry(Part.LineSegment(Vector(12.4, 21.1, 0), Vector(12.4, 18.1, 0)), False)
sketch19.addGeometry(Part.LineSegment(Vector(12.4, 18.1, 0), Vector(7.4, 18.1, 0)), False)
sketch19.addGeometry(Part.LineSegment(Vector(7.4, 18.1, 0), Vector(7.4, 21.1, 0)), False)
sketch19.addGeometry(Part.LineSegment(Vector(7.4, 21.1, 0), Vector(12.4, 21.1, 0)), False)
sketch19.addConstraint(Sketcher.Constraint("Coincident", 0, 2, 1, 1))
sketch19.addConstraint(Sketcher.Constraint("Coincident", 1, 2, 2, 1))
sketch19.addConstraint(Sketcher.Constraint("Coincident", 2, 2, 3, 1))
sketch19.addConstraint(Sketcher.Constraint("Coincident", 3, 2, 0, 1))
sketch19.addConstraint(Sketcher.Constraint("Vertical", 0))
sketch19.addConstraint(Sketcher.Constraint("Horizontal", 1))
sketch19.addConstraint(Sketcher.Constraint("Vertical", 2))
sketch19.addConstraint(Sketcher.Constraint("Horizontal", 3))
sketch19.addConstraint(Sketcher.Constraint("DistanceX", 1, 2, 1, 1, 5.0))
sketch19.addConstraint(Sketcher.Constraint("DistanceY", 0, 2, 0, 1, 3.0))
sketch19.addConstraint(Sketcher.Constraint("DistanceX", -1, 1, 0, 2, 12.4))
sketch19.addConstraint(Sketcher.Constraint("DistanceY", -1, 1, 0, 2, 18.1))
pad12 = body.newObject("PartDesign::Pad", "Pad011")
pad12.Profile = sketch19
pad12.Length = 42.402
pad12.Reversed = True

sketch20 = body.newObject("Sketcher::SketchObject", "Sketch019")
sketch20.AttachmentSupport = (doc.getObject("XZ_Plane"), [""])
sketch20.MapMode = "FlatFace"
sketch20.AttachmentOffset = App.Placement(Vector(0, 0, -21.1), App.Rotation())
sketch20.addGeometry(Part.Circle(Vector(9.9, -102.402, 0), Vector(0, 0, 1), 2.5), False)
sketch20.addConstraint(Sketcher.Constraint("Diameter", 0, 5.0))
sketch20.addConstraint(Sketcher.Constraint("DistanceX", -1, 1, 0, 3, 9.9))
sketch20.addConstraint(Sketcher.Constraint("DistanceY", 0, 3, -1, 1, 102.402))
pad13 = body.newObject("PartDesign::Pad", "Pad012")
pad13.Profile = sketch20
pad13.Length = 3

sketch21 = body.newObject("Sketcher::SketchObject", "Sketch020")
sketch21.AttachmentSupport = (doc.getObject("XZ_Plane"), [""])
sketch21.MapMode = "FlatFace"
sketch21.AttachmentOffset = App.Placement(Vector(0, 0, -21.1), App.Rotation())
sketch21.addGeometry(Part.Circle(Vector(9.9, -102.402, 0), Vector(0, 0, 1), 1.05), False)
sketch21.addConstraint(Sketcher.Constraint("Diameter", 0, 2.1))
sketch21.addConstraint(Sketcher.Constraint("DistanceX", -1, 1, 0, 3, 9.9))
sketch21.addConstraint(Sketcher.Constraint("DistanceY", 0, 3, -1, 1, 102.402))
pocket8 = body.newObject("PartDesign::Pocket", "Pocket007")
pocket8.Profile = sketch21
pocket8.Length = 3
pocket8.Reversed = True

sketch22 = body.newObject("Sketcher::SketchObject", "Sketch021")
sketch22.AttachmentSupport = (doc.getObject("YZ_Plane"), [""])
sketch22.MapMode = "FlatFace"
sketch22.AttachmentOffset = App.Placement(Vector(0, 0, 4.4), App.Rotation())
sketch22.addGeometry(Part.LineSegment(Vector(21.1, -60, 0), Vector(18.1, -60, 0)), False)
sketch22.addGeometry(Part.LineSegment(Vector(18.1, -60, 0), Vector(18.1, -104.902, 0)), False)
sketch22.addGeometry(Part.LineSegment(Vector(18.1, -104.902, 0), Vector(21.1, -104.902, 0)), False)
sketch22.addGeometry(Part.LineSegment(Vector(21.1, -104.902, 0), Vector(21.1, -60, 0)), False)
sketch22.addConstraint(Sketcher.Constraint("Coincident", 0, 2, 1, 1))
sketch22.addConstraint(Sketcher.Constraint("Coincident", 1, 2, 2, 1))
sketch22.addConstraint(Sketcher.Constraint("Coincident", 2, 2, 3, 1))
sketch22.addConstraint(Sketcher.Constraint("Coincident", 3, 2, 0, 1))
sketch22.addConstraint(Sketcher.Constraint("Horizontal", 0))
sketch22.addConstraint(Sketcher.Constraint("Vertical", 1))
sketch22.addConstraint(Sketcher.Constraint("Horizontal", 2))
sketch22.addConstraint(Sketcher.Constraint("Vertical", 3))
sketch22.addConstraint(Sketcher.Constraint("DistanceX", 0, 2, 0, 1, 3.0))
sketch22.addConstraint(Sketcher.Constraint("DistanceY", 0, 2, -1, 1, 60.0))
sketch22.addConstraint(Sketcher.Constraint("DistanceX", -1, 1, 0, 2, 18.1))
sketch22.addConstraint(Sketcher.Constraint("DistanceY", 1, 2, 1, 1, 44.902))
pocket9 = body.newObject("PartDesign::Pocket", "Pocket008")
pocket9.Profile = sketch22
pocket9.Type = "ThroughAll"

doc.recompute()
